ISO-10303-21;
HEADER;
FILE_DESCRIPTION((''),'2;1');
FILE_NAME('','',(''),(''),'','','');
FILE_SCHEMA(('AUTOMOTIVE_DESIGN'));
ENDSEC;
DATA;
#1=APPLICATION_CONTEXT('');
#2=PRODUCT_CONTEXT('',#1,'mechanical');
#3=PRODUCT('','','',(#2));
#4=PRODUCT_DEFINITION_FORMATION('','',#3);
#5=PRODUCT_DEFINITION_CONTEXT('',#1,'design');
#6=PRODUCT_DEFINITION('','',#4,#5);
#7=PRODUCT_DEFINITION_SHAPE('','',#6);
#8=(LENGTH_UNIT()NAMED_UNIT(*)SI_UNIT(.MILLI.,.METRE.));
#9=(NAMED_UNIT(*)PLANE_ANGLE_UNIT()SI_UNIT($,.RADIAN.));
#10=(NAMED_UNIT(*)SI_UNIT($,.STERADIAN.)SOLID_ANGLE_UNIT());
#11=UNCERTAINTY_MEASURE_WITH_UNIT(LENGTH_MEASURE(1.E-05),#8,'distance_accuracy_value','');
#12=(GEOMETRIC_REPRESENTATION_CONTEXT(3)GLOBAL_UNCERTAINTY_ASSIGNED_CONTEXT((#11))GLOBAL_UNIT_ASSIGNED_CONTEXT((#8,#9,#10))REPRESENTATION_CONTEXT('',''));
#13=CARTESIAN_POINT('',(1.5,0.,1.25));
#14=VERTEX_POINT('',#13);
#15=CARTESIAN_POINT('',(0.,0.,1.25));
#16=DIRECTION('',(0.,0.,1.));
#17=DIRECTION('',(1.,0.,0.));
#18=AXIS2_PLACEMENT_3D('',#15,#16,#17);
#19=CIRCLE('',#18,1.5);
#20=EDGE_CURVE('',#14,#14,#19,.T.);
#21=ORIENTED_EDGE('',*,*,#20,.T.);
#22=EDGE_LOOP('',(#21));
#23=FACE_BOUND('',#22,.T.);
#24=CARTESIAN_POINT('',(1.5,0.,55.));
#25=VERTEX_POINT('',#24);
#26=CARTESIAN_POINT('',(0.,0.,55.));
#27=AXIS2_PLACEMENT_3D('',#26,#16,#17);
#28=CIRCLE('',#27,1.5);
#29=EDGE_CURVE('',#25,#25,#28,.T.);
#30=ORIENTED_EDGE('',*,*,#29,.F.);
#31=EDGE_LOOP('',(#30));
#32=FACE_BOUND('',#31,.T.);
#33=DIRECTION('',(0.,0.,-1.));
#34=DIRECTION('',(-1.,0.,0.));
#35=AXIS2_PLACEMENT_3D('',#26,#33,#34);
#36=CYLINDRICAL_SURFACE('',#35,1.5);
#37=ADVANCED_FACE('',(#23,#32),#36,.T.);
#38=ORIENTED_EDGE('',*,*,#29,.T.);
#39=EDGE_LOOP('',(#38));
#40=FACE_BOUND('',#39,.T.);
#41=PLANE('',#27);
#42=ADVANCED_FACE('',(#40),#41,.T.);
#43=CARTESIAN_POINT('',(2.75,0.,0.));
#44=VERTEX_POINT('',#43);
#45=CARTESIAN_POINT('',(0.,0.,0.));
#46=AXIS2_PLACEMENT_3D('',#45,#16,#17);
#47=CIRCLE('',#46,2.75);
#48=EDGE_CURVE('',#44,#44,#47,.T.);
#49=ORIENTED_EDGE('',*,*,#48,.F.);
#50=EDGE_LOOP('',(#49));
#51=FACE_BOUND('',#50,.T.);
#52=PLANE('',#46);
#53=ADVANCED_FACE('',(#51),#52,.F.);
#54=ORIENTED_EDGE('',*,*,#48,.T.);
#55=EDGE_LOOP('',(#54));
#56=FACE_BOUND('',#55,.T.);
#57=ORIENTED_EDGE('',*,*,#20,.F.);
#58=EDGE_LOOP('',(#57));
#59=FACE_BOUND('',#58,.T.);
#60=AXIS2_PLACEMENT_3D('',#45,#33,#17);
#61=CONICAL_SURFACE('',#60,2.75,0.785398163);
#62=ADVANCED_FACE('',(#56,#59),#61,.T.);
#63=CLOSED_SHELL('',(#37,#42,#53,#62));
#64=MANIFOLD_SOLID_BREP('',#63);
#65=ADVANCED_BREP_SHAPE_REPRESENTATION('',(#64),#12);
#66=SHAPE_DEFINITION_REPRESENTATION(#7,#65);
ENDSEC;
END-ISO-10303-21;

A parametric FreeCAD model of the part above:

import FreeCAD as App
import Part
import Sketcher

doc = App.newDocument("Part")
body = doc.addObject("PartDesign::Body", "Body")

# Sketch on XY plane
sketch1 = doc.addObject("Sketcher::SketchObject", "Sketch")
body.addObject(sketch1)
sketch1.AttachmentSupport = (doc.XY_Plane, [""])
sketch1.MapMode = "FlatFace"
sketch1.AttachmentOffset = App.Placement(App.Vector(0, 0, 1.25), App.Rotation())
sketch1.addGeometry(Part.Circle(App.Vector(0, 0, 0), App.Vector(0, 0, 1), 1.5), False)
sketch1.addConstraint([
    Sketcher.Constraint("Coincident", 0, 3, -1, 1),
    Sketcher.Constraint("Diameter", 0, 3.0),
])
pad1 = doc.addObject("PartDesign::Pad", "Pad")
body.addObject(pad1)
pad1.Profile = sketch1
pad1.Length = 53.75

# Sketch on XY plane
sketch2 = doc.addObject("Sketcher::SketchObject", "Sketch001")
body.addObject(sketch2)
sketch2.AttachmentSupport = (doc.XY_Plane, [""])
sketch2.MapMode = "FlatFace"
sketch2.addGeometry(Part.Circle(App.Vector(0, 0, 0), App.Vector(0, 0, 1), 2.8), False)
sketch2.addConstraint([
    Sketcher.Constraint("Coincident", 0, 3, -1, 1),
    Sketcher.Constraint("Diameter", 0, 5.5),
])
pad2 = doc.addObject("PartDesign::Pad", "Pad001")
body.addObject(pad2)
pad2.Profile = sketch2
pad2.Length = 1.25
pad2.TaperAngle = -45

doc.recompute()
